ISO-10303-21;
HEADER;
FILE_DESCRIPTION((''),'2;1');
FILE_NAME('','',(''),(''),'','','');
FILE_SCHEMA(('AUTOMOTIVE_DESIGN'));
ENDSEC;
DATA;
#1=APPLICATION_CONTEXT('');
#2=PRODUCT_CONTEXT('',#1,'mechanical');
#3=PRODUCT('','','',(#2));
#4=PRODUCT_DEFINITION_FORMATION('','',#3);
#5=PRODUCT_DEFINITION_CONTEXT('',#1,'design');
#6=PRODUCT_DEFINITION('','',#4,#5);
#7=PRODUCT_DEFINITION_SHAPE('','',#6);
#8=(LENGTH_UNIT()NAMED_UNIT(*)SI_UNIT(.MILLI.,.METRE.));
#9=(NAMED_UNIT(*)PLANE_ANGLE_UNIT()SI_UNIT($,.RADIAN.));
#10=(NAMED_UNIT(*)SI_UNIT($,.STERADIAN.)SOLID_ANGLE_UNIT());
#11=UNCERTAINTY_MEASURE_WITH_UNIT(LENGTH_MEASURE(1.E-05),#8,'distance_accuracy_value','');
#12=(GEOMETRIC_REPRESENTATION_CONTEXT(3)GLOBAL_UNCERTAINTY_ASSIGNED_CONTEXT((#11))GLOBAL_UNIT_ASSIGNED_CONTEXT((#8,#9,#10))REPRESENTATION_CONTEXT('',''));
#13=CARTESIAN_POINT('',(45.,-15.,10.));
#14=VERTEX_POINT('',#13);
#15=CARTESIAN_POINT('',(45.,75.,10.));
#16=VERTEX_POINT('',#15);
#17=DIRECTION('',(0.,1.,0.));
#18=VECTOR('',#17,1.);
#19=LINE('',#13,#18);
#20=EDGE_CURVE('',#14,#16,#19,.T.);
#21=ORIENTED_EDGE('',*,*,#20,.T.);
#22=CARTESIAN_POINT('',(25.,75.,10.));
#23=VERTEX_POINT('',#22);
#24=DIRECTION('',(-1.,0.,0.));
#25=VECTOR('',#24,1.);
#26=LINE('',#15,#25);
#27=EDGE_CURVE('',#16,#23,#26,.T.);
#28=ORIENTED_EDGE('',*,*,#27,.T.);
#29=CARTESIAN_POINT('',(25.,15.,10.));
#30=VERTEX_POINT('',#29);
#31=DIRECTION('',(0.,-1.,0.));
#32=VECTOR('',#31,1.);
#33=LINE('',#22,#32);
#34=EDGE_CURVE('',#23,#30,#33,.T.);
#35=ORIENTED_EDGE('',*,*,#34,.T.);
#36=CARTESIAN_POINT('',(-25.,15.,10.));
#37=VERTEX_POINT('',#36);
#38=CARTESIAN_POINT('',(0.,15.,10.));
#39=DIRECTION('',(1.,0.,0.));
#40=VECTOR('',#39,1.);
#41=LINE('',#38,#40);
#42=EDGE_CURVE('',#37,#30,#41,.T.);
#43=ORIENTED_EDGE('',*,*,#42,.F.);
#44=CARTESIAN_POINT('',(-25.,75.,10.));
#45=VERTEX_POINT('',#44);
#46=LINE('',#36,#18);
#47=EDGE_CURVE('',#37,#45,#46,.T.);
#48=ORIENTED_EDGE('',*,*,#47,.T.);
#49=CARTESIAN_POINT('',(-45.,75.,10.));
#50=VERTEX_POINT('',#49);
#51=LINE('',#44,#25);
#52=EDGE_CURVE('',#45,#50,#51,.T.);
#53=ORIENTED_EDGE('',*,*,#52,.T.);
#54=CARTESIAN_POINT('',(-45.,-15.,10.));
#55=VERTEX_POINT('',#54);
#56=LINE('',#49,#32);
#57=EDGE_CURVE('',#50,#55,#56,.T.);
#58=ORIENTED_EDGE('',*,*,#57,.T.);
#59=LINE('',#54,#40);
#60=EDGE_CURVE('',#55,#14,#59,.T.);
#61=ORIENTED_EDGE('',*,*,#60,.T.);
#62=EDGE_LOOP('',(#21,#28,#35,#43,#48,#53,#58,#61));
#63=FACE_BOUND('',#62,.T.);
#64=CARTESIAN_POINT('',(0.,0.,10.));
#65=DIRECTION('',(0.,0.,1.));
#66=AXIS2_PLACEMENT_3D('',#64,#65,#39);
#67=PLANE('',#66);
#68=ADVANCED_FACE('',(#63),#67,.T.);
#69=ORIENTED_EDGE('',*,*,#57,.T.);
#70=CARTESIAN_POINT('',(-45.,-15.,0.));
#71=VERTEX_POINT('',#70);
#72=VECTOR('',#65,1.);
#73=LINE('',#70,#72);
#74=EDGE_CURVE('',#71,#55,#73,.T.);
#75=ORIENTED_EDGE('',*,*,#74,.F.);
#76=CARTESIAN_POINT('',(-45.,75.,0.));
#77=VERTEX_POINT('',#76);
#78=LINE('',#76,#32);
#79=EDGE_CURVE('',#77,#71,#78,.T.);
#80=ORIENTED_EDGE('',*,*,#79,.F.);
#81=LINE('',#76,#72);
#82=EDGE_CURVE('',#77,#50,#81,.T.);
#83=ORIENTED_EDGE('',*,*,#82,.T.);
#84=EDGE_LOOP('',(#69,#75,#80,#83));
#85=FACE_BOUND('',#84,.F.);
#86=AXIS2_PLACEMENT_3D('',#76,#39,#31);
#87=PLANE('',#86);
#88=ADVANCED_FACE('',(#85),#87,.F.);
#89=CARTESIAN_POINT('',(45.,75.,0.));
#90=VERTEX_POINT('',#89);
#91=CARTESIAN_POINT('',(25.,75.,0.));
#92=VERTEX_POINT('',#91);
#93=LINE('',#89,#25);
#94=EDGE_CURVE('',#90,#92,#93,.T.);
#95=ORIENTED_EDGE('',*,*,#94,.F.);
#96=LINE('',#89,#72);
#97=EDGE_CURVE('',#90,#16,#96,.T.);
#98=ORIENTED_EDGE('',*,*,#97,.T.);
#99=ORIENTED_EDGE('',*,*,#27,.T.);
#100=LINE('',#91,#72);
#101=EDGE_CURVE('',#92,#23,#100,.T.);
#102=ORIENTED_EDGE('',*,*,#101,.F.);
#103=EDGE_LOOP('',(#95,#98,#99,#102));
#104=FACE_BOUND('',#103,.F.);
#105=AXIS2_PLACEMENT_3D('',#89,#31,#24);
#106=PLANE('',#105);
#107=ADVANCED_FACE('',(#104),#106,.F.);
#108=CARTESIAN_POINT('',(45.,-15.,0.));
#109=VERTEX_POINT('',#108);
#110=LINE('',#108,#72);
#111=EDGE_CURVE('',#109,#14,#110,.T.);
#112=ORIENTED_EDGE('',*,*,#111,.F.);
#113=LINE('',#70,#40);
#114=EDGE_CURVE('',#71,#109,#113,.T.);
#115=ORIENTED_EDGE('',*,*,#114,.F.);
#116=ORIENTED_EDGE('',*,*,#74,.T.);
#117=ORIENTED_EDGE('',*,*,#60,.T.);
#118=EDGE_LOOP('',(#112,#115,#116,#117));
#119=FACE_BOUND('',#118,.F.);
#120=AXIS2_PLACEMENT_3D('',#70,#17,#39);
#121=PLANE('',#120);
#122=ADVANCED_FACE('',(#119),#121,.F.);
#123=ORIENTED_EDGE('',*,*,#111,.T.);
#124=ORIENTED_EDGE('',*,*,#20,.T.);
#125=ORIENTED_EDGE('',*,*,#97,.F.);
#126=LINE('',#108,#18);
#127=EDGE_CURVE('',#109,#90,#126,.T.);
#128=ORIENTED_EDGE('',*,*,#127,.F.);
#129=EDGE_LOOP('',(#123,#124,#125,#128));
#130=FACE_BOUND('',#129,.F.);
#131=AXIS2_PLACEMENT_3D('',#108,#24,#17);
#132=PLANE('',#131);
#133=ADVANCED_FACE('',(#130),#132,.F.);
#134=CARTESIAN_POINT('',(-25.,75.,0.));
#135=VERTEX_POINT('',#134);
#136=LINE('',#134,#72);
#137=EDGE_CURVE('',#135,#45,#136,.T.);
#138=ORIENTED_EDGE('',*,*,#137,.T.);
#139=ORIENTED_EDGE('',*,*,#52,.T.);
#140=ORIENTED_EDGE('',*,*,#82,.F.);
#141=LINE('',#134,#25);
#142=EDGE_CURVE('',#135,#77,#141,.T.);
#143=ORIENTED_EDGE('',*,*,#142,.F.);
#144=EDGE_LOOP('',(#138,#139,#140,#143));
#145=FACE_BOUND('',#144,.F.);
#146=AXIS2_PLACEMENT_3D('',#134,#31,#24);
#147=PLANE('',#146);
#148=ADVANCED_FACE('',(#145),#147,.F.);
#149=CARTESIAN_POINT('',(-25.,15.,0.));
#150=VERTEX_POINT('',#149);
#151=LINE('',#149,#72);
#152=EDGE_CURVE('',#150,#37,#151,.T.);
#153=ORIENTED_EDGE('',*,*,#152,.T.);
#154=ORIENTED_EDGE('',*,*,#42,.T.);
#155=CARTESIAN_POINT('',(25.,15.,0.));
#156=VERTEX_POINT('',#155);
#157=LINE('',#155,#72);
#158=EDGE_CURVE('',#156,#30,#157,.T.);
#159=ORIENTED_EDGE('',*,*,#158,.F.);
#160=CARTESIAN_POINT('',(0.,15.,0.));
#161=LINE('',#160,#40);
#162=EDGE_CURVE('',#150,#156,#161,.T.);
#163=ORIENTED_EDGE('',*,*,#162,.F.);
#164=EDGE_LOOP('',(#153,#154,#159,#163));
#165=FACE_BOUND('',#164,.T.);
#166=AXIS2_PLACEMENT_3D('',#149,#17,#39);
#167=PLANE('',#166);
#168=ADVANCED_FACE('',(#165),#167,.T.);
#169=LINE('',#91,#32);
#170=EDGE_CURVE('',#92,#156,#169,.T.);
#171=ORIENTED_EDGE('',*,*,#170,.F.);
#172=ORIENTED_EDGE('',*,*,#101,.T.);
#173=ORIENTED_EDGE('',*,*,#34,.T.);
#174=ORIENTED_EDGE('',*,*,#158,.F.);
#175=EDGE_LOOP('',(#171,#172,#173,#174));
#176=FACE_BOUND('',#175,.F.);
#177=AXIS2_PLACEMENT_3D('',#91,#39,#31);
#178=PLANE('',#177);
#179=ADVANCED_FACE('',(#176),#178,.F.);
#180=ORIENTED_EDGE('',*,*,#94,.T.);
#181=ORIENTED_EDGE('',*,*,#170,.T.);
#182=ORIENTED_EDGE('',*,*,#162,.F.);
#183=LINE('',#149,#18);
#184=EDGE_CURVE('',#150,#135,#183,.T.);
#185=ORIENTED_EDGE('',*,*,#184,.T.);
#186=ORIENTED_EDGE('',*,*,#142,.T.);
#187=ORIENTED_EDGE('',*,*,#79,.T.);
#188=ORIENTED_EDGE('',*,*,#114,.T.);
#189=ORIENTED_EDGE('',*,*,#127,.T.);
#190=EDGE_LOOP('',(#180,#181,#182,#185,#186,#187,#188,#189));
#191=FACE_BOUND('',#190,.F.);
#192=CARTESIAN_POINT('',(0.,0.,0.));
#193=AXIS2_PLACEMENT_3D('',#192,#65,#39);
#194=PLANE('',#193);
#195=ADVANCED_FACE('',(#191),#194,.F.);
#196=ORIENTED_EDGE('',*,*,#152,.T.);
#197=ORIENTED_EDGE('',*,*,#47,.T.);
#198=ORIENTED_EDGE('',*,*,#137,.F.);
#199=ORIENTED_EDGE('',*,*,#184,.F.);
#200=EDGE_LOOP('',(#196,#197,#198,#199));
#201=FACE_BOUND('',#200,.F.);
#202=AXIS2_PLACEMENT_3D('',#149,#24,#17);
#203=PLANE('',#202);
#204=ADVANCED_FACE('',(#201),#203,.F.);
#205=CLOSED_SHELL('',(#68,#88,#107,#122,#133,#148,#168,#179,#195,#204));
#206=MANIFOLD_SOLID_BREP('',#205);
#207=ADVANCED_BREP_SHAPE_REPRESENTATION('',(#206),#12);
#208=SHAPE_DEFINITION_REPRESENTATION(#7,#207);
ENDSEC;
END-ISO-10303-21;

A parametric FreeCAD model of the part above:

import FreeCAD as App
import Part
import Sketcher

V = App.Vector


def add_polygon(sketch, points):
    """Adds a closed chain of lines whose ends are joined by coincident constraints."""
    first, n = sketch.GeometryCount, len(points)
    for a, b in zip(points, points[1:] + points[:1]):
        sketch.addGeometry(Part.LineSegment(App.Vector(*a, 0), App.Vector(*b, 0)), False)
    for i in range(n):
        sketch.addConstraint(Sketcher.Constraint("Coincident", first + i, 2, first + (i + 1) % n, 1))

doc = App.newDocument("Part")
params = doc.addObject("Spreadsheet::Sheet", "Params")
for row, (alias, value) in enumerate([
    ("sketch1_width", "50 mm"),
    ("sketch1_width2", "20 mm"),
    ("sketch1_height", "60 mm"),
    ("pad1_length", "10 mm"),
], start=1):
    params.set(f"A{row}", alias)
    params.set(f"B{row}", "=" + value)
    params.setAlias(f"B{row}", alias)

body = doc.addObject("PartDesign::Body", "Body")

# Sketch on XY plane
sketch1 = body.newObject("Sketcher::SketchObject", "Sketch")
sketch1.AttachmentSupport = (doc.getObject("XY_Plane"), [""])
sketch1.MapMode = "FlatFace"
add_polygon(sketch1, [(25, 15), (-25, 15), (-25, 75), (-45, 75), (-45, -15), (45, -15), (45, 75), (25, 75)])  # lines 0-7
sketch1.addConstraint([
    Sketcher.Constraint("Horizontal", 0),
    Sketcher.Constraint("Vertical", 1),
    Sketcher.Constraint("Horizontal", 2),
    Sketcher.Constraint("Vertical", 3),
    Sketcher.Constraint("Horizontal", 4),
    Sketcher.Constraint("Vertical", 5),
    Sketcher.Constraint("Horizontal", 6),
    Sketcher.Constraint("Vertical", 7),
    Sketcher.Constraint("Symmetric", 2, 2, 5, 2, -2),
    Sketcher.Constraint("Equal", 2, 6),
    Sketcher.Constraint("Equal", 4, 3),
    Sketcher.Constraint("DistanceX", 0, 2, 0, 1, 50.0),
    Sketcher.Constraint("DistanceX", 2, 2, 2, 1, 20.0),
    Sketcher.Constraint("DistanceY", 1, 1, 1, 2, 60.0),
    Sketcher.Constraint("DistanceY", -1, 1, 0, 2, 15.0),
])
sketch1.setExpression("Constraints[19]", "Params.sketch1_width")
sketch1.setExpression("Constraints[20]", "Params.sketch1_width2")
sketch1.setExpression("Constraints[21]", "Params.sketch1_height")
pad1 = body.newObject("PartDesign::Pad", "Pad")
pad1.Profile = sketch1
pad1.setExpression("Length", "Params.pad1_length")

doc.recompute()
